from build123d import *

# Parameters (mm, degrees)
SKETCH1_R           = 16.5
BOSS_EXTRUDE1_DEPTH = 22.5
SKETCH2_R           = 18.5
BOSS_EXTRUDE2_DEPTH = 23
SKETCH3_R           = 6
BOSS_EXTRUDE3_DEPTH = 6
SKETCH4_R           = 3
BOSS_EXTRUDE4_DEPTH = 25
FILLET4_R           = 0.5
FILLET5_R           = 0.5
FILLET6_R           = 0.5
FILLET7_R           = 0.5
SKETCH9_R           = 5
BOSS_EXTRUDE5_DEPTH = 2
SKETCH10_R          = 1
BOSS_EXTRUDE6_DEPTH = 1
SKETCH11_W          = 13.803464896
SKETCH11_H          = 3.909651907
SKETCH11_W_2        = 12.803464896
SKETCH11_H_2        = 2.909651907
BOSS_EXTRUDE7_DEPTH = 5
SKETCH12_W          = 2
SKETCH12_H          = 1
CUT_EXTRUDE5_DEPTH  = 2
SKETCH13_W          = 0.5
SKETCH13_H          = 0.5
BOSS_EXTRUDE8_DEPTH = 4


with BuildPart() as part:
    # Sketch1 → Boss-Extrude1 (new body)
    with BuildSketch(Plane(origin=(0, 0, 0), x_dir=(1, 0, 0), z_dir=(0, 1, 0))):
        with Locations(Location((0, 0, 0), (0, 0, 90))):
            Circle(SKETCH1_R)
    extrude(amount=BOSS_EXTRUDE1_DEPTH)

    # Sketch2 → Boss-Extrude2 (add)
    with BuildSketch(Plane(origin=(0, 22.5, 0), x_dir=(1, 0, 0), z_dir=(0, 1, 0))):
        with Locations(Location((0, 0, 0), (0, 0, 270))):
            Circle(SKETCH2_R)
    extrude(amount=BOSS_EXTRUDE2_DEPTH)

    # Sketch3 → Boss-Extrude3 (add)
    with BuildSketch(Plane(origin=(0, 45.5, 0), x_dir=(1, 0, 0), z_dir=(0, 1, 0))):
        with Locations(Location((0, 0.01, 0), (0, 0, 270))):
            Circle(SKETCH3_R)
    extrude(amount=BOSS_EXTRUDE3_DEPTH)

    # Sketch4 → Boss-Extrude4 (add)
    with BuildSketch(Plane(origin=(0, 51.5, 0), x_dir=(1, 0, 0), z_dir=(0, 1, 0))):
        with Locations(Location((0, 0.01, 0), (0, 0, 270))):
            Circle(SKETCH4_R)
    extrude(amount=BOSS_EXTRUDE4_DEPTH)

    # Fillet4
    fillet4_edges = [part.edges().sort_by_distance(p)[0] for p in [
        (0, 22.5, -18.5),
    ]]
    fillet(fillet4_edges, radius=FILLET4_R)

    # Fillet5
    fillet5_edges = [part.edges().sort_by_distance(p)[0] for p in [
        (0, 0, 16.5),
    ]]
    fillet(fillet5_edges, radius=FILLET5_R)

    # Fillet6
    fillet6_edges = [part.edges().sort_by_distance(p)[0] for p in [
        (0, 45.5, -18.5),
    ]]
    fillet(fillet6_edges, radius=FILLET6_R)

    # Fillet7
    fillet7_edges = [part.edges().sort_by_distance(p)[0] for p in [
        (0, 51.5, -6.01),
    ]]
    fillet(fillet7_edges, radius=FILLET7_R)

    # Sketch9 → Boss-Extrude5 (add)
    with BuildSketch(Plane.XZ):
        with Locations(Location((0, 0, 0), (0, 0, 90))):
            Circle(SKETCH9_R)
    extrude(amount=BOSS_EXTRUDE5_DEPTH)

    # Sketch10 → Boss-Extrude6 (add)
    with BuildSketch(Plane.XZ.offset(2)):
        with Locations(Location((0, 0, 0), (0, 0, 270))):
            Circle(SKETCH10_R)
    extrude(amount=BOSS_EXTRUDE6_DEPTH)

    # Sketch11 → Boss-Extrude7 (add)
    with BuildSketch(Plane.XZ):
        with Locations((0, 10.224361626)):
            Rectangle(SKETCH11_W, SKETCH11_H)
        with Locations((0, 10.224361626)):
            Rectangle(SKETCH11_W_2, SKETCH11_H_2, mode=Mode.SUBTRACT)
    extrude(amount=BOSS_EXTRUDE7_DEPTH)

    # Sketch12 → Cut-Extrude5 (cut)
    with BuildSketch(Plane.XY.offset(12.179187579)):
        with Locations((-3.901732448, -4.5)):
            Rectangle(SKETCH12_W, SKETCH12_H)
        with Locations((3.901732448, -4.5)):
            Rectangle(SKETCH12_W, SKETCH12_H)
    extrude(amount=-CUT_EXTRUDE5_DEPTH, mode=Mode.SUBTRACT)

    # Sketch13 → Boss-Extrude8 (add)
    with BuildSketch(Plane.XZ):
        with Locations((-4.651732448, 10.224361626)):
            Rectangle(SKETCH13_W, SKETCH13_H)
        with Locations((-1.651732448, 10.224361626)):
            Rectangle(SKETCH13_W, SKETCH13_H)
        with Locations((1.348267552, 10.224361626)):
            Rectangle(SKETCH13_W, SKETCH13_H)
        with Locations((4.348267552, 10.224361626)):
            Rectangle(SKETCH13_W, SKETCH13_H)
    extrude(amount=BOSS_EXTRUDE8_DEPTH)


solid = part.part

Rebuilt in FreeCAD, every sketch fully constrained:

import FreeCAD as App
import Part
import Sketcher


def edges_at(feature, points):
    """Names of the edges that pass closest to the given points."""
    edges = feature.Shape.Edges
    near = lambda p: min(range(len(edges)), key=lambda i: edges[i].distToShape(Part.Vertex(*p))[0])
    return sorted({f"Edge{near(p) + 1}" for p in points})


def add_polygon(sketch, points):
    """Adds a closed chain of lines whose ends are joined by coincident constraints."""
    first, n = sketch.GeometryCount, len(points)
    for a, b in zip(points, points[1:] + points[:1]):
        sketch.addGeometry(Part.LineSegment(App.Vector(*a, 0), App.Vector(*b, 0)), False)
    for i in range(n):
        sketch.addConstraint(Sketcher.Constraint("Coincident", first + i, 2, first + (i + 1) % n, 1))

doc = App.newDocument("Part")
body = doc.addObject("PartDesign::Body", "Body")

# Sketch on XZ plane
sketch1 = doc.addObject("Sketcher::SketchObject", "Sketch")
body.addObject(sketch1)
sketch1.AttachmentSupport = (doc.XZ_Plane, [""])
sketch1.MapMode = "FlatFace"
sketch1.addGeometry(Part.Circle(App.Vector(0, 0, 0), App.Vector(0, 0, 1), 16), False)
sketch1.addConstraint(Sketcher.Constraint("Coincident", 0, 3, -1, 1))
sketch1.addConstraint(Sketcher.Constraint("Diameter", 0, 33.0))
pad1 = doc.addObject("PartDesign::Pad", "Pad")
body.addObject(pad1)
pad1.Profile = sketch1
pad1.Length = 22.5
pad1.Reversed = True

# Sketch on XZ plane
sketch2 = doc.addObject("Sketcher::SketchObject", "Sketch001")
body.addObject(sketch2)
sketch2.AttachmentSupport = (doc.XZ_Plane, [""])
sketch2.MapMode = "FlatFace"
sketch2.AttachmentOffset = App.Placement(App.Vector(0, 0, -22.5), App.Rotation())
sketch2.addGeometry(Part.Circle(App.Vector(0, 0, 0), App.Vector(0, 0, 1), 18), False)
sketch2.addConstraint(Sketcher.Constraint("Coincident", 0, 3, -1, 1))
sketch2.addConstraint(Sketcher.Constraint("Diameter", 0, 37.0))
pad2 = doc.addObject("PartDesign::Pad", "Pad001")
body.addObject(pad2)
pad2.Profile = sketch2
pad2.Length = 23
pad2.Reversed = True

# Sketch on XZ plane
sketch3 = doc.addObject("Sketcher::SketchObject", "Sketch002")
body.addObject(sketch3)
sketch3.AttachmentSupport = (doc.XZ_Plane, [""])
sketch3.MapMode = "FlatFace"
sketch3.AttachmentOffset = App.Placement(App.Vector(0, 0, -45.5), App.Rotation())
sketch3.addGeometry(Part.Circle(App.Vector(0, 0, 0), App.Vector(0, 0, 1), 6), False)
sketch3.addConstraint(Sketcher.Constraint("PointOnObject", 0, 3, -2))
sketch3.addConstraint(Sketcher.Constraint("Diameter", 0, 12.0))
sketch3.addConstraint(Sketcher.Constraint("DistanceY", 0, 3, -1, 1, 0.01))
pad3 = doc.addObject("PartDesign::Pad", "Pad002")
body.addObject(pad3)
pad3.Profile = sketch3
pad3.Length = 6
pad3.Reversed = True

# Sketch on XZ plane
sketch4 = doc.addObject("Sketcher::SketchObject", "Sketch003")
body.addObject(sketch4)
sketch4.AttachmentSupport = (doc.XZ_Plane, [""])
sketch4.MapMode = "FlatFace"
sketch4.AttachmentOffset = App.Placement(App.Vector(0, 0, -51.5), App.Rotation())
sketch4.addGeometry(Part.Circle(App.Vector(0, 0, 0), App.Vector(0, 0, 1), 3), False)
sketch4.addConstraint(Sketcher.Constraint("PointOnObject", 0, 3, -2))
sketch4.addConstraint(Sketcher.Constraint("Diameter", 0, 6.0))
sketch4.addConstraint(Sketcher.Constraint("DistanceY", 0, 3, -1, 1, 0.01))
pad4 = doc.addObject("PartDesign::Pad", "Pad003")
body.addObject(pad4)
pad4.Profile = sketch4
pad4.Length = 25
pad4.Reversed = True
doc.recompute()

fillet = doc.addObject("PartDesign::Fillet", "Fillet")
body.addObject(fillet)
fillet.Base = (pad4, edges_at(pad4, [(0, 22.5, -18.5)]))
fillet.Radius = 0.5
doc.recompute()

fillet2 = doc.addObject("PartDesign::Fillet", "Fillet001")
body.addObject(fillet2)
fillet2.Base = (fillet, edges_at(fillet, [(0, 0, 16.5)]))
fillet2.Radius = 0.5
doc.recompute()

fillet3 = doc.addObject("PartDesign::Fillet", "Fillet002")
body.addObject(fillet3)
fillet3.Base = (fillet2, edges_at(fillet2, [(0, 45.5, -18.5)]))
fillet3.Radius = 0.5
doc.recompute()

fillet4 = doc.addObject("PartDesign::Fillet", "Fillet003")
body.addObject(fillet4)
fillet4.Base = (fillet3, edges_at(fillet3, [(0, 51.5, -6.01)]))
fillet4.Radius = 0.5

# Sketch on XZ plane
sketch5 = doc.addObject("Sketcher::SketchObject", "Sketch004")
body.addObject(sketch5)
sketch5.AttachmentSupport = (doc.XZ_Plane, [""])
sketch5.MapMode = "FlatFace"
sketch5.addGeometry(Part.Circle(App.Vector(0, 0, 0), App.Vector(0, 0, 1), 5), False)
sketch5.addConstraint(Sketcher.Constraint("Coincident", 0, 3, -1, 1))
sketch5.addConstraint(Sketcher.Constraint("Diameter", 0, 10.0))
pad5 = doc.addObject("PartDesign::Pad", "Pad004")
body.addObject(pad5)
pad5.Profile = sketch5
pad5.Length = 2

# Sketch on XZ plane
sketch6 = doc.addObject("Sketcher::SketchObject", "Sketch005")
body.addObject(sketch6)
sketch6.AttachmentSupport = (doc.XZ_Plane, [""])
sketch6.MapMode = "FlatFace"
sketch6.AttachmentOffset = App.Placement(App.Vector(0, 0, 2), App.Rotation())
sketch6.addGeometry(Part.Circle(App.Vector(0, 0, 0), App.Vector(0, 0, 1), 1), False)
sketch6.addConstraint(Sketcher.Constraint("Coincident", 0, 3, -1, 1))
sketch6.addConstraint(Sketcher.Constraint("Diameter", 0, 2.0))
pad6 = doc.addObject("PartDesign::Pad", "Pad005")
body.addObject(pad6)
pad6.Profile = sketch6
pad6.Length = 1

# Sketch on XZ plane
sketch7 = doc.addObject("Sketcher::SketchObject", "Sketch006")
body.addObject(sketch7)
sketch7.AttachmentSupport = (doc.XZ_Plane, [""])
sketch7.MapMode = "FlatFace"
add_polygon(sketch7, [(-6.9, 12.2), (-6.9, 8.3), (6.9, 8.3), (6.9, 12.2)])  # lines 0-3
add_polygon(sketch7, [(6.4, 8.8), (-6.4, 8.8), (-6.4, 11.7), (6.4, 11.7)])  # lines 4-7
sketch7.addConstraint(Sketcher.Constraint("Vertical", 0))
sketch7.addConstraint(Sketcher.Constraint("Horizontal", 1))
sketch7.addConstraint(Sketcher.Constraint("Vertical", 2))
sketch7.addConstraint(Sketcher.Constraint("Horizontal", 3))
sketch7.addConstraint(Sketcher.Constraint("Horizontal", 4))
sketch7.addConstraint(Sketcher.Constraint("Vertical", 5))
sketch7.addConstraint(Sketcher.Constraint("Horizontal", 6))
sketch7.addConstraint(Sketcher.Constraint("Vertical", 7))
sketch7.addConstraint(Sketcher.Constraint("DistanceX", 0, 2, 4, 2, 0.5))
sketch7.addConstraint(Sketcher.Constraint("DistanceY", 0, 2, 4, 2, 0.5))
sketch7.addConstraint(Sketcher.Constraint("DistanceY", 5, 2, 3, 2, 0.5))
sketch7.addConstraint(Sketcher.Constraint("DistanceX", 6, 2, 2, 2, 0.5))
sketch7.addConstraint(Sketcher.Constraint("DistanceY", 0, 2, 0, 1, 3.909652))
sketch7.addConstraint(Sketcher.Constraint("DistanceX", 1, 1, 1, 2, 13.803465))
sketch7.addConstraint(Sketcher.Constraint("DistanceX", 0, 2, -1, 1, 6.901732))
sketch7.addConstraint(Sketcher.Constraint("DistanceY", -1, 1, 0, 2, 8.269536))
pad7 = doc.addObject("PartDesign::Pad", "Pad006")
body.addObject(pad7)
pad7.Profile = sketch7
pad7.Length = 5

# Sketch on XY plane
sketch8 = doc.addObject("Sketcher::SketchObject", "Sketch007")
body.addObject(sketch8)
sketch8.AttachmentSupport = (doc.XY_Plane, [""])
sketch8.MapMode = "FlatFace"
sketch8.AttachmentOffset = App.Placement(App.Vector(0, 0, 12.179188), App.Rotation())
add_polygon(sketch8, [(-4.9, -4), (-4.9, -5), (-2.9, -5), (-2.9, -4)])  # lines 0-3
add_polygon(sketch8, [(2.9, -4), (2.9, -5), (4.9, -5), (4.9, -4)])  # lines 4-7
sketch8.addConstraint(Sketcher.Constraint("Vertical", 0))
sketch8.addConstraint(Sketcher.Constraint("Horizontal", 1))
sketch8.addConstraint(Sketcher.Constraint("Vertical", 2))
sketch8.addConstraint(Sketcher.Constraint("Horizontal", 3))
sketch8.addConstraint(Sketcher.Constraint("Vertical", 4))
sketch8.addConstraint(Sketcher.Constraint("Horizontal", 5))
sketch8.addConstraint(Sketcher.Constraint("Vertical", 6))
sketch8.addConstraint(Sketcher.Constraint("Horizontal", 7))
sketch8.addConstraint(Sketcher.Constraint("Symmetric", 1, 2, 4, 2, -2))
sketch8.addConstraint(Sketcher.Constraint("Symmetric", 3, 2, 6, 2, -2))
sketch8.addConstraint(Sketcher.Constraint("DistanceX", 1, 1, 1, 2, 2.0))
sketch8.addConstraint(Sketcher.Constraint("DistanceY", 0, 2, 0, 1, 1.0))
sketch8.addConstraint(Sketcher.Constraint("DistanceY", 0, 2, -1, 1, 5.0))
sketch8.addConstraint(Sketcher.Constraint("DistanceX", 0, 2, -1, 1, 4.901732))
pocket1 = doc.addObject("PartDesign::Pocket", "Pocket")
body.addObject(pocket1)
pocket1.Profile = sketch8
pocket1.Length = 2

# Sketch on XZ plane
sketch9 = doc.addObject("Sketcher::SketchObject", "Sketch008")
body.addObject(sketch9)
sketch9.AttachmentSupport = (doc.XZ_Plane, [""])
sketch9.MapMode = "FlatFace"
add_polygon(sketch9, [(-4.9, 10.5), (-4.9, 10), (-4.4, 10), (-4.4, 10.5)])  # lines 0-3
add_polygon(sketch9, [(-1.9, 10.5), (-1.9, 10), (-1.4, 10), (-1.4, 10.5)])  # lines 4-7
add_polygon(sketch9, [(1.1, 10.5), (1.1, 10), (1.6, 10), (1.6, 10.5)])  # lines 8-11
add_polygon(sketch9, [(4.1, 10.5), (4.1, 10), (4.6, 10), (4.6, 10.5)])  # lines 12-15
sketch9.addConstraint(Sketcher.Constraint("Vertical", 0))
sketch9.addConstraint(Sketcher.Constraint("Horizontal", 1))
sketch9.addConstraint(Sketcher.Constraint("Vertical", 2))
sketch9.addConstraint(Sketcher.Constraint("Horizontal", 3))
sketch9.addConstraint(Sketcher.Constraint("Vertical", 4))
sketch9.addConstraint(Sketcher.Constraint("Horizontal", 5))
sketch9.addConstraint(Sketcher.Constraint("Vertical", 6))
sketch9.addConstraint(Sketcher.Constraint("Horizontal", 7))
sketch9.addConstraint(Sketcher.Constraint("Vertical", 8))
sketch9.addConstraint(Sketcher.Constraint("Horizontal", 9))
sketch9.addConstraint(Sketcher.Constraint("Vertical", 10))
sketch9.addConstraint(Sketcher.Constraint("Horizontal", 11))
sketch9.addConstraint(Sketcher.Constraint("Vertical", 12))
sketch9.addConstraint(Sketcher.Constraint("Horizontal", 13))
sketch9.addConstraint(Sketcher.Constraint("Vertical", 14))
sketch9.addConstraint(Sketcher.Constraint("Horizontal", 15))
sketch9.addConstraint(Sketcher.Constraint("Horizontal", 1, 2, 4, 2))
sketch9.addConstraint(Sketcher.Constraint("Horizontal", 3, 2, 6, 2))
sketch9.addConstraint(Sketcher.Constraint("Horizontal", 5, 2, 8, 2))
sketch9.addConstraint(Sketcher.Constraint("Horizontal", 7, 2, 10, 2))
sketch9.addConstraint(Sketcher.Constraint("Horizontal", 9, 2, 12, 2))
sketch9.addConstraint(Sketcher.Constraint("Horizontal", 11, 2, 14, 2))
sketch9.addConstraint(Sketcher.Constraint("Equal", 3, 5))
sketch9.addConstraint(Sketcher.Constraint("Equal", 7, 9))
sketch9.addConstraint(Sketcher.Constraint("Equal", 11, 13))
sketch9.addConstraint(Sketcher.Constraint("Equal", 15, 0))
sketch9.addConstraint(Sketcher.Constraint("DistanceX", 1, 1, 1, 2, 0.5))
sketch9.addConstraint(Sketcher.Constraint("DistanceX", 0, 2, 4, 2, 3.0))
sketch9.addConstraint(Sketcher.Constraint("DistanceX", 4, 2, 8, 2, 3.0))
sketch9.addConstraint(Sketcher.Constraint("DistanceX", 8, 2, 12, 2, 3.0))
sketch9.addConstraint(Sketcher.Constraint("DistanceY", -1, 1, 0, 2, 9.974362))
sketch9.addConstraint(Sketcher.Constraint("DistanceX", 0, 2, -1, 1, 4.901732))
pad8 = doc.addObject("PartDesign::Pad", "Pad007")
body.addObject(pad8)
pad8.Profile = sketch9
pad8.Length = 4

doc.recompute()
